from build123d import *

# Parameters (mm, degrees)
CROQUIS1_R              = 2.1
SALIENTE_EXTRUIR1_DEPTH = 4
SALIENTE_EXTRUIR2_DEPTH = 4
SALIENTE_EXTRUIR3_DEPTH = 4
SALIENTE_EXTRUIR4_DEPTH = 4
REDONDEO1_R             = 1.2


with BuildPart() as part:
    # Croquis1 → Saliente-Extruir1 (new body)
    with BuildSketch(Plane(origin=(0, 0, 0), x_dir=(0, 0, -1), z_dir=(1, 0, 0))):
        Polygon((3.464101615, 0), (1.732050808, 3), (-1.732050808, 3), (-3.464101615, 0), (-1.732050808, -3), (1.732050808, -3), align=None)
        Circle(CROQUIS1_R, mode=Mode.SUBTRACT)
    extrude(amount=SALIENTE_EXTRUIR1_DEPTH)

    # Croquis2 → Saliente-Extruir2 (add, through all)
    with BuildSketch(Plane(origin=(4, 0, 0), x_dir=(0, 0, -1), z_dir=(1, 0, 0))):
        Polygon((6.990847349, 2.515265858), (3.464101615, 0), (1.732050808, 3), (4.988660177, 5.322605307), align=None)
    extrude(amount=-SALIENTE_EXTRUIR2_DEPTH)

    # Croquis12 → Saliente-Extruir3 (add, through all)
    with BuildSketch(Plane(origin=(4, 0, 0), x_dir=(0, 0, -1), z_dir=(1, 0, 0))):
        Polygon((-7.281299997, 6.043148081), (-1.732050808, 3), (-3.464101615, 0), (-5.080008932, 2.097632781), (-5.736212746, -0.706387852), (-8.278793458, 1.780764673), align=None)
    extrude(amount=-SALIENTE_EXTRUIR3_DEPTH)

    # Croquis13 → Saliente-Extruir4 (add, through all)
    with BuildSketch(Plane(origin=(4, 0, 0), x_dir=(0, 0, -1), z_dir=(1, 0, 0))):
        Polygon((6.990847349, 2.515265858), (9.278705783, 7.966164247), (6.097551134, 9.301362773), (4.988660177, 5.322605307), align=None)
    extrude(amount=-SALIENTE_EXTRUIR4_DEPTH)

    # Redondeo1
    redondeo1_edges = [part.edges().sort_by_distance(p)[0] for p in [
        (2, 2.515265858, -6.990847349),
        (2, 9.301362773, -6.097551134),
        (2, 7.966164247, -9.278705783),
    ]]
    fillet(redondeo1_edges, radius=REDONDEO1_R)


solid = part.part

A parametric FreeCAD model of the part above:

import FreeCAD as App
import Part
import Sketcher
from FreeCAD import Vector
Q = App.Units.Quantity


def edges_at(feature, points):
    """Names of the edges that pass closest to the given points."""
    edges = feature.Shape.Edges
    near = lambda p: min(range(len(edges)), key=lambda i: edges[i].distToShape(Part.Vertex(*p))[0])
    return sorted({f"Edge{near(p) + 1}" for p in points})


def add_polygon(sketch, points):
    """Adds a closed chain of lines whose ends are joined by coincident constraints."""
    first, n = sketch.GeometryCount, len(points)
    for a, b in zip(points, points[1:] + points[:1]):
        sketch.addGeometry(Part.LineSegment(App.Vector(*a, 0), App.Vector(*b, 0)), False)
    for i in range(n):
        sketch.addConstraint(Sketcher.Constraint("Coincident", first + i, 2, first + (i + 1) % n, 1))

doc = App.newDocument("Part")
body = doc.addObject("PartDesign::Body", "Body")

sketch1 = body.newObject("Sketcher::SketchObject", "Sketch")
sketch1.AttachmentSupport = (doc.getObject("YZ_Plane"), [""])
sketch1.MapMode = "FlatFace"
add_polygon(sketch1, [(0, -3.5), (3, -1.7), (3, 1.7), (0, 3.5), (-3, 1.7), (-3, -1.7)])
sketch1.addGeometry(Part.Circle(Vector(0, 0, 0), Vector(0, 0, 1), 2.1), False)
sketch1.addConstraint([
    Sketcher.Constraint("Vertical", 1),
    Sketcher.Constraint("Vertical", 4),
    Sketcher.Constraint("Coincident", 6, 3, -1, 1),
    Sketcher.Constraint("Symmetric", 0, 2, 3, 2, -1, 1),
    Sketcher.Constraint("Symmetric", 2, 2, 5, 2, -1, 1),
    Sketcher.Constraint("PointOnObject", 2, 2, -2),
    Sketcher.Constraint("Parallel", 2, 5),
    Sketcher.Constraint("Horizontal", 1, 2, 3, 2),
    Sketcher.Constraint("Diameter", 6, 4.2),
    Sketcher.Constraint("Angle", 0, Q("30 deg")),
    Sketcher.Constraint("DistanceX", -1, 1, 0, 2, 3.0),
    Sketcher.Constraint("DistanceY", 1, 1, 1, 2, 3.464102),
])
pad1 = body.newObject("PartDesign::Pad", "Pad")
pad1.Profile = sketch1
pad1.Length = 4

sketch2 = body.newObject("Sketcher::SketchObject", "Sketch001")
sketch2.AttachmentSupport = (doc.getObject("YZ_Plane"), [""])
sketch2.MapMode = "FlatFace"
sketch2.AttachmentOffset = App.Placement(Vector(0, 0, 4), App.Rotation())
add_polygon(sketch2, [(0, -3.5), (2.5, -7), (5.3, -5), (3, -1.7)])
sketch2.addConstraint([
    Sketcher.Constraint("PointOnObject", 3, 2, -2),
    Sketcher.Constraint("Perpendicular", 0, 1),
    Sketcher.Constraint("Perpendicular", 1, 2),
    Sketcher.Constraint("Angle", 3, Q("-150 deg")),
    Sketcher.Constraint("Distance", 2, 4.0),
    Sketcher.Constraint("DistanceX", -1, 1, 2, 2, 3.0),
    Sketcher.Constraint("Distance", 0, 4.331801),
    Sketcher.Constraint("DistanceY", 3, 2, -1, 1, 3.464102),
])
pad2 = body.newObject("PartDesign::Pad", "Pad001")
pad2.Profile = sketch2
pad2.Length = 4
pad2.Reversed = True

sketch3 = body.newObject("Sketcher::SketchObject", "Sketch002")
sketch3.AttachmentSupport = (doc.getObject("YZ_Plane"), [""])
sketch3.MapMode = "FlatFace"
sketch3.AttachmentOffset = App.Placement(Vector(0, 0, 4), App.Rotation())
add_polygon(sketch3, [(3, 1.7), (6, 7.3), (1.8, 8.3), (-0.7, 5.7), (2.1, 5.1), (0, 3.5)])
sketch3.addConstraint([
    Sketcher.Constraint("PointOnObject", 4, 2, -2),
    Sketcher.Constraint("Parallel", 1, 3),
    Sketcher.Constraint("Angle", 5, Q("-30 deg")),
    Sketcher.Constraint("DistanceX", -1, 1, 5, 2, 3.0),
    Sketcher.Constraint("DistanceY", -1, 1, 0, 2, 7.2813),
    Sketcher.Constraint("DistanceY", -1, 1, 4, 2, 3.464102),
    Sketcher.Constraint("Distance", 3, 2.87978),
    Sketcher.Constraint("Distance", 4, 2.647871),
    Sketcher.Constraint("DistanceX", -1, 1, 0, 2, 6.043148),
    Sketcher.Constraint("DistanceY", -1, 1, 3, 2, 5.080009),
    Sketcher.Constraint("DistanceY", 2, 2, 1, 2, 2.542581),
    Sketcher.Constraint("DistanceX", 2, 2, 3, 2, 2.804021),
])
pad3 = body.newObject("PartDesign::Pad", "Pad002")
pad3.Profile = sketch3
pad3.Length = 4
pad3.Reversed = True

sketch4 = body.newObject("Sketcher::SketchObject", "Sketch003")
sketch4.AttachmentSupport = (doc.getObject("YZ_Plane"), [""])
sketch4.MapMode = "FlatFace"
sketch4.AttachmentOffset = App.Placement(Vector(0, 0, 4), App.Rotation())
add_polygon(sketch4, [(2.5, -7), (8, -9.3), (9.3, -6.1), (5.3, -5)])
sketch4.addConstraint([
    Sketcher.Constraint("Perpendicular", 0, 1),
    Sketcher.Constraint("Distance", 1, 3.45),
    Sketcher.Constraint("DistanceX", 0, 2, 1, 2, 1.335199),
    Sketcher.Constraint("DistanceX", 3, 2, 0, 2, 5.450898),
    Sketcher.Constraint("DistanceY", 1, 2, -1, 1, 6.097551),
    Sketcher.Constraint("DistanceY", 2, 2, -1, 1, 4.98866),
    Sketcher.Constraint("DistanceX", 2, 2, 0, 2, 2.643559),
    Sketcher.Constraint("DistanceX", -1, 1, 0, 2, 7.966164),
])
pad4 = body.newObject("PartDesign::Pad", "Pad003")
pad4.Profile = sketch4
pad4.Length = 4
pad4.Reversed = True
doc.recompute()

fillet = body.newObject("PartDesign::Fillet", "Fillet")
fillet.Base = (pad4, edges_at(pad4, [(2, 2.515, -6.991), (2, 9.301, -6.098), (2, 7.966, -9.279)]))
fillet.Radius = 1.2

doc.recompute()
